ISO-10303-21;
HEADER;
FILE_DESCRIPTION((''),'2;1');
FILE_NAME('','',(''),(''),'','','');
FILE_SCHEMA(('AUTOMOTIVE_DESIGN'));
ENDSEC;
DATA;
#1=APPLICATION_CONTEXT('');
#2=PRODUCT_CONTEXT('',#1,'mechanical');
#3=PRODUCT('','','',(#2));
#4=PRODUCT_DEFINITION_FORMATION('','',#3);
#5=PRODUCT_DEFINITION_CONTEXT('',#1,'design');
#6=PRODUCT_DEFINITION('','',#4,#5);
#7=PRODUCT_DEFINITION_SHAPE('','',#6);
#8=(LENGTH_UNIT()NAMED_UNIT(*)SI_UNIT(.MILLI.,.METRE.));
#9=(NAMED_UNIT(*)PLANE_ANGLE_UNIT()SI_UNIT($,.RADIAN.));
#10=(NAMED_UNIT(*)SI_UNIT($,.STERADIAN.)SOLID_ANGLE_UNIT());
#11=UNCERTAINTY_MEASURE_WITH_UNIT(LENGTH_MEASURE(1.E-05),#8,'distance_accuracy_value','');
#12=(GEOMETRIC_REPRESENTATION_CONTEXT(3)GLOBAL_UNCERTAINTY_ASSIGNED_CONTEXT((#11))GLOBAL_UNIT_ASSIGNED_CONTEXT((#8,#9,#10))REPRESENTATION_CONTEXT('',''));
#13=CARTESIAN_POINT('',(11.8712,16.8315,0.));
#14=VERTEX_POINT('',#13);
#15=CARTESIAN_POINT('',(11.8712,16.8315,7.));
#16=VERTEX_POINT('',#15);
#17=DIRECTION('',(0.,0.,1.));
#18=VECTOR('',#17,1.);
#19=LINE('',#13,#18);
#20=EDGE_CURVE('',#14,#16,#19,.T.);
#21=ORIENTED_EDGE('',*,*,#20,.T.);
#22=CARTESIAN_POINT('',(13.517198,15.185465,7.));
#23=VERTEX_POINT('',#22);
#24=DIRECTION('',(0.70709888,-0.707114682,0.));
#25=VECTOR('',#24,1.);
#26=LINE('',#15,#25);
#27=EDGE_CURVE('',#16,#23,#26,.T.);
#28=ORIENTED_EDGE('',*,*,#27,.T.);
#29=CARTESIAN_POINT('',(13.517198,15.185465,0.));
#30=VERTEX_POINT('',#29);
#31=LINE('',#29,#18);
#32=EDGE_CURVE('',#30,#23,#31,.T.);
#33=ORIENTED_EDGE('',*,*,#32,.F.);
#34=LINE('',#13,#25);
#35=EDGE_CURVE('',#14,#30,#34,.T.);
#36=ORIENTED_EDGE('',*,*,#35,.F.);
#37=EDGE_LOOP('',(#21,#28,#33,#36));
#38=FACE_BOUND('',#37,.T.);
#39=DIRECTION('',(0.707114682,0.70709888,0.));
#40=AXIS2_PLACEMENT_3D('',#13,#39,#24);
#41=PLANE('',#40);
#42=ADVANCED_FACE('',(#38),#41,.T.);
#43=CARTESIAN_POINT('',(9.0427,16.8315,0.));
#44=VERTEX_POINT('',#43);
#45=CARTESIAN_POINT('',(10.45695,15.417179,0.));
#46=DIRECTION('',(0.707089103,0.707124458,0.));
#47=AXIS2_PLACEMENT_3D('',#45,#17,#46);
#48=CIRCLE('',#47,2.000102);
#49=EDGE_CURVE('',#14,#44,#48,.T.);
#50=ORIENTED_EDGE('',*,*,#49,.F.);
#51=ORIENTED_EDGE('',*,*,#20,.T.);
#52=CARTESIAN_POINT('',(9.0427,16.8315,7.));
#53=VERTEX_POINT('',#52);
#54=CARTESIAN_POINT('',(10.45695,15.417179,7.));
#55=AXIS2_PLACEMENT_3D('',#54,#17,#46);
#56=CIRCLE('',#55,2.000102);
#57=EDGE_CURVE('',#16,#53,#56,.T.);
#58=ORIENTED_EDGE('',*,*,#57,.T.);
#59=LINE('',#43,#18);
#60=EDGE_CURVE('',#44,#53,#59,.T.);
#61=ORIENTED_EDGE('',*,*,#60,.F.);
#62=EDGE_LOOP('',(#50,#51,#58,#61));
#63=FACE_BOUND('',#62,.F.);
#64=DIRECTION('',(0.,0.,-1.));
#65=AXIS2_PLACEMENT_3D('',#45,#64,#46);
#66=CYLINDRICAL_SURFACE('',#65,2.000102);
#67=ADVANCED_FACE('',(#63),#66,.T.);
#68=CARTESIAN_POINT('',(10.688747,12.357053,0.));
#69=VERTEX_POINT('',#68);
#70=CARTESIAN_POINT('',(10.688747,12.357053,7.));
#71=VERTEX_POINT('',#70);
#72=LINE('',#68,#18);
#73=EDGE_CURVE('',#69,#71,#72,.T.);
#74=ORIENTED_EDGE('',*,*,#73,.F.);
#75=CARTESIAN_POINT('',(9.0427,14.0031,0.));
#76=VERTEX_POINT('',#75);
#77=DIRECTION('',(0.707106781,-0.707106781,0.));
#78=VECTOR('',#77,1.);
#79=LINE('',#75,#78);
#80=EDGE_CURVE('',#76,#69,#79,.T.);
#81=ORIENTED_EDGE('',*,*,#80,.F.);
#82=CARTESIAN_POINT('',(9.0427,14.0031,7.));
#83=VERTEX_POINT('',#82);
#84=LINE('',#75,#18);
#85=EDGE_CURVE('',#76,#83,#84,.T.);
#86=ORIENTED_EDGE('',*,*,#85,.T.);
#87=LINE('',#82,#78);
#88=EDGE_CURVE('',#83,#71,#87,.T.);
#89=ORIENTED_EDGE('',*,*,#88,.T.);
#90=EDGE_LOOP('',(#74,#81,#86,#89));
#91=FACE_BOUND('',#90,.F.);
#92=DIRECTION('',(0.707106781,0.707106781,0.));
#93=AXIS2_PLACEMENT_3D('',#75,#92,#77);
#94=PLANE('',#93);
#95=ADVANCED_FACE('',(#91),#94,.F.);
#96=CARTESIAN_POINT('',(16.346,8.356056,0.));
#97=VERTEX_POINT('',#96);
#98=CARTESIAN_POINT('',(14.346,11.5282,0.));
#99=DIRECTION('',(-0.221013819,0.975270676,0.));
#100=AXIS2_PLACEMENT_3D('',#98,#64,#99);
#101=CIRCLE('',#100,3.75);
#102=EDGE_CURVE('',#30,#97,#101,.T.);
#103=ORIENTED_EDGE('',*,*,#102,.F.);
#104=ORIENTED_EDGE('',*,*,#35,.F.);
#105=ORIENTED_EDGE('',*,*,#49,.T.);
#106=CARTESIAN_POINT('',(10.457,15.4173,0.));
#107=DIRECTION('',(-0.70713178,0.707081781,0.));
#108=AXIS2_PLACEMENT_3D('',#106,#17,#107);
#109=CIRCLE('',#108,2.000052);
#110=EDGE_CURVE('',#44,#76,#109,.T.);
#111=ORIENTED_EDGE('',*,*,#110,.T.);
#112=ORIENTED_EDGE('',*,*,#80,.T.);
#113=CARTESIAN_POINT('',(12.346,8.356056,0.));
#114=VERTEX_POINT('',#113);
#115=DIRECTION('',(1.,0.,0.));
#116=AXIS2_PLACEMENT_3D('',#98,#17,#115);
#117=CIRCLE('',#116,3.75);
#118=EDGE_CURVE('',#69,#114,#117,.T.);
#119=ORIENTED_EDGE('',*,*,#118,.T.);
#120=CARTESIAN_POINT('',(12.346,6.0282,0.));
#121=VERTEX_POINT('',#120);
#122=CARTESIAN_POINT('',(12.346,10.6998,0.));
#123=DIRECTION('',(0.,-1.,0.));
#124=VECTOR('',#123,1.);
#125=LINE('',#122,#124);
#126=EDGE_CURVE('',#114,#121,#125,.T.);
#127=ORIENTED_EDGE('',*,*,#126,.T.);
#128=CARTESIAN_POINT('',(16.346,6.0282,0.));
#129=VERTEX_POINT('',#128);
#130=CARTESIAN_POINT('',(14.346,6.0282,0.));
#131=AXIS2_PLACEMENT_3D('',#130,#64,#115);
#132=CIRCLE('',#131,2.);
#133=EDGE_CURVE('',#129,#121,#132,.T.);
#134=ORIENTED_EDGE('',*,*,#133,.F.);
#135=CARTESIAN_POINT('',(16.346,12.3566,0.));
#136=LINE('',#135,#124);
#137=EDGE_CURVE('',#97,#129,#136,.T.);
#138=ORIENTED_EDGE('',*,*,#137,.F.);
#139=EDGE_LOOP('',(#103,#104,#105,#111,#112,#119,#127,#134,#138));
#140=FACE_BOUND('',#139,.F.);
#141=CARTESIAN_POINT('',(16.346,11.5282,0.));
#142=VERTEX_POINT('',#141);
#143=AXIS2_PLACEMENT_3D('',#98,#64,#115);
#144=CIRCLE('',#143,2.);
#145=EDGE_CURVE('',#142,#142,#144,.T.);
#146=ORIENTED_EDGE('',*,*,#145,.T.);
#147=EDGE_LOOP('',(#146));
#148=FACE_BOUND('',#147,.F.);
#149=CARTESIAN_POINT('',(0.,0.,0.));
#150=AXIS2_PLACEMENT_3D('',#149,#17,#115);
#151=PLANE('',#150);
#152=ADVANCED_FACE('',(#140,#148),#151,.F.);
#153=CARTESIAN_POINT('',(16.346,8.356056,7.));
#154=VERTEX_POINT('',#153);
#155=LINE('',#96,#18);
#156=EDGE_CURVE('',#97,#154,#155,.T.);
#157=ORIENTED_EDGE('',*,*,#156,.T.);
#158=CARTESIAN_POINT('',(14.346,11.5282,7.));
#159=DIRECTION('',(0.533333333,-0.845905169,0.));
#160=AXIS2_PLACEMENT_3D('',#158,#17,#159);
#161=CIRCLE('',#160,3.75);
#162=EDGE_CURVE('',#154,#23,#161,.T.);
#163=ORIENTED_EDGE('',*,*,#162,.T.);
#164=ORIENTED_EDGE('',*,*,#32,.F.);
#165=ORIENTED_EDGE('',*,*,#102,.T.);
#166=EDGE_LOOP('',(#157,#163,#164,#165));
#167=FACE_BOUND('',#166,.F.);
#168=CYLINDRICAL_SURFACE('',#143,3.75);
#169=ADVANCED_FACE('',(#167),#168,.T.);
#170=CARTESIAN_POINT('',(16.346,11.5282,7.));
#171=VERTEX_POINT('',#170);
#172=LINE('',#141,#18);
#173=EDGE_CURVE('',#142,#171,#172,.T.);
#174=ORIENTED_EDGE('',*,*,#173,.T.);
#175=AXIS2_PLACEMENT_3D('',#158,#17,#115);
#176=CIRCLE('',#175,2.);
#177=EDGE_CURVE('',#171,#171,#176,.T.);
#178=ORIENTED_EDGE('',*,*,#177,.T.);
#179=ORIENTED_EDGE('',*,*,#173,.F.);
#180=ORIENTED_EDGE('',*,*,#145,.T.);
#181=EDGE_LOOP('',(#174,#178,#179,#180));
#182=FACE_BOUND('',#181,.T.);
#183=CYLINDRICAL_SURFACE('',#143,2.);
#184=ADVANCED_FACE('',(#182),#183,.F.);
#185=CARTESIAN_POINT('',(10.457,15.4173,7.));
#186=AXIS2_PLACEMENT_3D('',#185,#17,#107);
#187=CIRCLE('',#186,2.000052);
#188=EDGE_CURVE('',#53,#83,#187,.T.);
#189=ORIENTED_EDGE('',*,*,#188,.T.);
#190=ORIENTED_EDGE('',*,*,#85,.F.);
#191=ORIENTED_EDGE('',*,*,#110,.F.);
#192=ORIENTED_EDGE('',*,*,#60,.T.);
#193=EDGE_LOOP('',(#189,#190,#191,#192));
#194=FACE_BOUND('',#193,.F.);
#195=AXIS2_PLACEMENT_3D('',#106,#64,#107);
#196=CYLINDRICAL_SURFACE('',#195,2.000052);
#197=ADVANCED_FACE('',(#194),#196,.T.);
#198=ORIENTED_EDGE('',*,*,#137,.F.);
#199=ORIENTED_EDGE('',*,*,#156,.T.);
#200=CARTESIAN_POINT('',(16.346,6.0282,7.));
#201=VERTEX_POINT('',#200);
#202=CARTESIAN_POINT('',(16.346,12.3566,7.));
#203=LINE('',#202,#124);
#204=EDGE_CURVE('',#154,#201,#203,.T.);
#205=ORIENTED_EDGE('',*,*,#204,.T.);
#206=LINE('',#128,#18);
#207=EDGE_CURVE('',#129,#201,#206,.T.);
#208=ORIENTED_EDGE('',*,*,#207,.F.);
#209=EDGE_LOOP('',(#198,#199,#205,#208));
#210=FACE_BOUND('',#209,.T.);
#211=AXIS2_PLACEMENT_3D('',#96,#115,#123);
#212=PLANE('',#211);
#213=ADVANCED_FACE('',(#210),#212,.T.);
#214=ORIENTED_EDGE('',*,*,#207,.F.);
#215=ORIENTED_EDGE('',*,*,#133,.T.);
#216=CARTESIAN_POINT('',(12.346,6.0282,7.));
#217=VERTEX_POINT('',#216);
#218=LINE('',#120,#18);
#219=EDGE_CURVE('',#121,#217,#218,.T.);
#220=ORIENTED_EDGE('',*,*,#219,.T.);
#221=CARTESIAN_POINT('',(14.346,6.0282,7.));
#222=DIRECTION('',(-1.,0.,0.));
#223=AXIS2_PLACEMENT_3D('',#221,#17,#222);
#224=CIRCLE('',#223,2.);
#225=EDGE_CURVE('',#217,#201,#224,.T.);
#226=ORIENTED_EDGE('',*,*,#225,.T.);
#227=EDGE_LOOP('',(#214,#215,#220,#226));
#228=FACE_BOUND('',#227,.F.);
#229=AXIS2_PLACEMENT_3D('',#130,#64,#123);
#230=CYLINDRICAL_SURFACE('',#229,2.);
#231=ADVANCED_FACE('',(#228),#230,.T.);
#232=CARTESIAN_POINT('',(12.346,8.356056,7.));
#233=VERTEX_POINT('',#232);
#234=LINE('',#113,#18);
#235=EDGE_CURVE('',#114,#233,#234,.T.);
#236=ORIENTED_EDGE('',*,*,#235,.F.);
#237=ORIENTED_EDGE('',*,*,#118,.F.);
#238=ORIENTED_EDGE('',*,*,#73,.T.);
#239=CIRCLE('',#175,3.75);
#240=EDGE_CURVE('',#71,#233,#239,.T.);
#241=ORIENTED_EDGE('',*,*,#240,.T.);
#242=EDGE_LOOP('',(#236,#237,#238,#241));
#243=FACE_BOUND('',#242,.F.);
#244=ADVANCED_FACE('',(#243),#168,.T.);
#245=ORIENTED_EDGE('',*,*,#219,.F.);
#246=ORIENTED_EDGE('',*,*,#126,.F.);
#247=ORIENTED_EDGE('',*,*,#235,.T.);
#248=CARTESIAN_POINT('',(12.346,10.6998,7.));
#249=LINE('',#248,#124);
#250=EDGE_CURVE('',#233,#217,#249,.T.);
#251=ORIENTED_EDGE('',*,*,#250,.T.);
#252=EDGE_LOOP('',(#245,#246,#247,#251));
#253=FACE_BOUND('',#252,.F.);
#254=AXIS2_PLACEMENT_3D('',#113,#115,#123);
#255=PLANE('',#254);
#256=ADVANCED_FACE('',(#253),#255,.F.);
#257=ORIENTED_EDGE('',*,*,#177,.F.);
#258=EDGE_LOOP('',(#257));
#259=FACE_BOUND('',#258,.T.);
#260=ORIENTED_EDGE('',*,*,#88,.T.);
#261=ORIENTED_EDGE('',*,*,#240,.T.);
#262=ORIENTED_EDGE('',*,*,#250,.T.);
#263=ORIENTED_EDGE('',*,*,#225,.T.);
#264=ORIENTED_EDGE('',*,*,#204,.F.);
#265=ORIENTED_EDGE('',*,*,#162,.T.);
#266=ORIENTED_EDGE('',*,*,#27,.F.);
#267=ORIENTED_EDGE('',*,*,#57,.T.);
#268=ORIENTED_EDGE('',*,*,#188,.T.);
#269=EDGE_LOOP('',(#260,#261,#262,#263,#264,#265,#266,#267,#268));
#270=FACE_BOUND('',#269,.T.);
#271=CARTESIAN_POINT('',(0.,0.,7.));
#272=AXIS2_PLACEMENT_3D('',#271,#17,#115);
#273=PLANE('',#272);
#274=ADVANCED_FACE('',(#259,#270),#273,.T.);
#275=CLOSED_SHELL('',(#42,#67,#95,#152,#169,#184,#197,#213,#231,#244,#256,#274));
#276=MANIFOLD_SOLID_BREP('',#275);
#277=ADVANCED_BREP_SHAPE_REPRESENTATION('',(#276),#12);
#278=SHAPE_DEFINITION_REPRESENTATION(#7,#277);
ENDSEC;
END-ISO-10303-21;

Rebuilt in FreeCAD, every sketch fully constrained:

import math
import FreeCAD as App
import Part
import Sketcher
from FreeCAD import Vector
Q = App.Units.Quantity

doc = App.newDocument("Part")
body = doc.addObject("PartDesign::Body", "Body")

# Sketch on XY plane
sketch1 = doc.addObject("Sketcher::SketchObject", "Sketch")
body.addObject(sketch1)
sketch1.AttachmentSupport = (doc.XY_Plane, [""])
sketch1.MapMode = "FlatFace"
sketch1.addGeometry([
    Part.LineSegment(Vector(13.5, 15.2, 0), Vector(11.9, 16.8, 0)),  # 0
    Part.ArcOfCircle(Part.Circle(Vector(10.5, 15.4, 0), Vector(0, 0, 1), 2), math.radians(45), math.radians(135)),  # 1
    Part.ArcOfCircle(Part.Circle(Vector(10.5, 15.4, 0), Vector(0, 0, 1), 2), math.radians(135), math.radians(225)),  # 2
    Part.LineSegment(Vector(9, 14, 0), Vector(10.7, 12.4, 0)),  # 3
    Part.ArcOfCircle(Part.Circle(Vector(14.3, 11.5, 0), Vector(0, 0, 1), 3.8), math.radians(167), math.radians(238)),  # 4
    Part.LineSegment(Vector(12.3, 8.4, 0), Vector(12.3, 6, 0)),  # 5
    Part.ArcOfCircle(Part.Circle(Vector(14.3, 6, 0), Vector(0, 0, 1), 2), math.radians(180), math.radians(360)),  # 6
    Part.LineSegment(Vector(16.3, 6, 0), Vector(16.3, 8.4, 0)),  # 7
    Part.ArcOfCircle(Part.Circle(Vector(14.3, 11.5, 0), Vector(0, 0, 1), 3.8), math.radians(-58), math.radians(103)),  # 8
    Part.Circle(Vector(14.3, 11.5, 0), Vector(0, 0, 1), 2),  # 9
], False)
sketch1.addConstraint([
    Sketcher.Constraint("Tangent", 0, 2, 1, 1),
    Sketcher.Constraint("Tangent", 1, 2, 2, 1),
    Sketcher.Constraint("Tangent", 2, 2, 3, 1),
    Sketcher.Constraint("Coincident", 3, 2, 4, 1),
    Sketcher.Constraint("Coincident", 4, 2, 5, 1),
    Sketcher.Constraint("Tangent", 5, 2, 6, 1),
    Sketcher.Constraint("Tangent", 6, 2, 7, 1),
    Sketcher.Constraint("Coincident", 7, 2, 8, 1),
    Sketcher.Constraint("Coincident", 8, 2, 0, 1),
    Sketcher.Constraint("Vertical", 5),
    Sketcher.Constraint("Vertical", 7),
    Sketcher.Constraint("Coincident", 8, 3, 4, 3),
    Sketcher.Constraint("Coincident", 9, 3, 4, 3),
    Sketcher.Constraint("Equal", 1, 2),
    Sketcher.Constraint("Equal", 2, 6),
    Sketcher.Constraint("Equal", 4, 8),
    Sketcher.Constraint("Equal", 6, 9),
    Sketcher.Constraint("Parallel", 0, 3),
    Sketcher.Constraint("Horizontal", 0, 2, 1, 2),
    Sketcher.Constraint("Horizontal", 4, 2, 7, 2),
    Sketcher.Constraint("Equal", 0, 3),
    Sketcher.Constraint("Diameter", 9, Q("4 mm")),
    Sketcher.Constraint("Radius", 4, Q("3.75 mm")),
    Sketcher.Constraint("Angle", 0, Q("134.9994 deg")),
    Sketcher.Constraint("DistanceY", 6, 3, 4, 3, Q("5.5 mm")),
    Sketcher.Constraint("DistanceX", -1, 1, 1, 3, Q("10.457 mm")),
    Sketcher.Constraint("DistanceX", -1, 1, 4, 3, Q("14.346 mm")),
    Sketcher.Constraint("DistanceY", -1, 1, 2, 2, Q("14.003 mm")),
])
pad1 = doc.addObject("PartDesign::Pad", "Pad")
body.addObject(pad1)
pad1.Profile = sketch1
pad1.Length = 7

doc.recompute()
